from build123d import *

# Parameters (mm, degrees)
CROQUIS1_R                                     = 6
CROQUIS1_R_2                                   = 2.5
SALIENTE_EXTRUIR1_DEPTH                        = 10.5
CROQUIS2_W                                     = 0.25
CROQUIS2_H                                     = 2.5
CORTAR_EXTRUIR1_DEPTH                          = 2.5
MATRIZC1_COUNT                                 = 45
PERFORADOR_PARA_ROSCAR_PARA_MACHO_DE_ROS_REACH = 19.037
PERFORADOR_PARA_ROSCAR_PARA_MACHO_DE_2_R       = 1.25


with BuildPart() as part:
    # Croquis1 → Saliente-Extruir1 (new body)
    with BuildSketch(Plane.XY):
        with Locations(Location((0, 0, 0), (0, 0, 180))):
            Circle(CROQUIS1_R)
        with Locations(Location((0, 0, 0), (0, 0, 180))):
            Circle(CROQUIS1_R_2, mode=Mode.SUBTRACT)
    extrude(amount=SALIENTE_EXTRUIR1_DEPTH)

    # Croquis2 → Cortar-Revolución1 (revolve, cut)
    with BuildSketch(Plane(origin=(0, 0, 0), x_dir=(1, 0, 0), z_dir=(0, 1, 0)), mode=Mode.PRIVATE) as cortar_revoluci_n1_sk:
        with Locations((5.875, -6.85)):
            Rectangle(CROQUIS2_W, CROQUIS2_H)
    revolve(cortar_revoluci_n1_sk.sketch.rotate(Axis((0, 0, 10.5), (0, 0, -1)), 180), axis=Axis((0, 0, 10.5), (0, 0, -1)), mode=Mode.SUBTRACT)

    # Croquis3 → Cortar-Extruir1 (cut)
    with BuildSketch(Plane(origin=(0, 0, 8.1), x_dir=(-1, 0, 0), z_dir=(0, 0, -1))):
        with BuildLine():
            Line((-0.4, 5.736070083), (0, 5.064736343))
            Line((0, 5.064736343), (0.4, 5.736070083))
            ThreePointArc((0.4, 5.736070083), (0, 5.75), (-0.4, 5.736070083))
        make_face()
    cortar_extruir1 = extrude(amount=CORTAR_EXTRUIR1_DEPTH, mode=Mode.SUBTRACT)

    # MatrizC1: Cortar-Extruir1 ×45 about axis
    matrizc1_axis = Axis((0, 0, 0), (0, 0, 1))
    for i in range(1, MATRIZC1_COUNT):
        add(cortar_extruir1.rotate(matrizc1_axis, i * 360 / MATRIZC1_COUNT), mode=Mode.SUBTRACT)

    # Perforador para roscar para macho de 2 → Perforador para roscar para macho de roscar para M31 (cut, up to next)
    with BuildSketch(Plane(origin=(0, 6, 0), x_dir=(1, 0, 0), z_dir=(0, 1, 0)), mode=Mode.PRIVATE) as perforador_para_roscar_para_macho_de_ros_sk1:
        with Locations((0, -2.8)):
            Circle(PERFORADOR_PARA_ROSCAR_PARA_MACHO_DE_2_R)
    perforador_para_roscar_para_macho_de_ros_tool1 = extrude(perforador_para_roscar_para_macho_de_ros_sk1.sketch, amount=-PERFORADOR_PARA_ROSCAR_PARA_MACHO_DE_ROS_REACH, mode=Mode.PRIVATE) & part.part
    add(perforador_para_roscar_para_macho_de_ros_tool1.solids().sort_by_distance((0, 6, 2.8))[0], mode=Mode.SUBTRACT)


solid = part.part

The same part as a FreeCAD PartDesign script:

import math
import FreeCAD as App
import Part
import Sketcher
Q = App.Units.Quantity


def add_polygon(sketch, points):
    """Adds a closed chain of lines whose ends are joined by coincident constraints."""
    first, n = sketch.GeometryCount, len(points)
    for a, b in zip(points, points[1:] + points[:1]):
        sketch.addGeometry(Part.LineSegment(App.Vector(*a, 0), App.Vector(*b, 0)), False)
    for i in range(n):
        sketch.addConstraint(Sketcher.Constraint("Coincident", first + i, 2, first + (i + 1) % n, 1))

doc = App.newDocument("Part")
body = doc.addObject("PartDesign::Body", "Body")

sketch1 = body.newObject("Sketcher::SketchObject", "Sketch")
sketch1.AttachmentSupport = (doc.getObject("XY_Plane"), [""])
sketch1.MapMode = "FlatFace"
sketch1.addGeometry([
    Part.Circle(App.Vector(0, 0, 0), App.Vector(0, 0, 1), 6),
    Part.Circle(App.Vector(0, 0, 0), App.Vector(0, 0, 1), 2.5),
], False)
sketch1.addConstraint([
    Sketcher.Constraint("Coincident", 0, 3, -1, 1),
    Sketcher.Constraint("Coincident", 1, 3, -1, 1),
    Sketcher.Constraint("Diameter", 0, Q("12 mm")),
    Sketcher.Constraint("Diameter", 1, Q("5 mm")),
])
pad1 = body.newObject("PartDesign::Pad", "Pad")
pad1.Profile = sketch1
pad1.Length = 10.5

sketch2 = body.newObject("Sketcher::SketchObject", "Sketch001")
sketch2.AttachmentSupport = (doc.getObject("XZ_Plane"), [""])
sketch2.MapMode = "FlatFace"
add_polygon(sketch2, [(5.75, 5.6), (5.75, 8.1), (6, 8.1), (6, 5.6)])
sketch2.addConstraint([
    Sketcher.Constraint("Vertical", 0),
    Sketcher.Constraint("Horizontal", 1),
    Sketcher.Constraint("Vertical", 2),
    Sketcher.Constraint("Horizontal", 3),
    Sketcher.Constraint("DistanceY", 0, 1, 0, 2, Q("2.5 mm")),
    Sketcher.Constraint("DistanceX", -1, 1, 1, 2, Q("6 mm")),
    Sketcher.Constraint("DistanceX", 1, 1, 1, 2, Q("0.25 mm")),
    Sketcher.Constraint("DistanceY", -1, 1, 0, 2, Q("8.1 mm")),
])
groove = body.newObject("PartDesign::Groove", "Groove")
groove.Profile = sketch2
groove.ReferenceAxis = (sketch2, ["V_Axis"])
groove.Angle = 360

sketch3 = body.newObject("Sketcher::SketchObject", "Sketch002")
sketch3.AttachmentSupport = (doc.getObject("XY_Plane"), [""])
sketch3.MapMode = "FlatFace"
sketch3.AttachmentOffset = App.Placement(App.Vector(0, 0, 8.1), App.Rotation())
sketch3.addGeometry([
    Part.LineSegment(App.Vector(0.4, 5.7, 0), App.Vector(0, 5.1, 0)),
    Part.LineSegment(App.Vector(0, 5.1, 0), App.Vector(-0.4, 5.7, 0)),
    Part.ArcOfCircle(Part.Circle(App.Vector(0, 0, 0), App.Vector(0, 0, 1), 5.7), math.radians(86.01), math.radians(93.99)),
], False)
sketch3.addConstraint([
    Sketcher.Constraint("Coincident", 0, 2, 1, 1),
    Sketcher.Constraint("Coincident", 1, 2, 2, 2),
    Sketcher.Constraint("Coincident", 2, 1, 0, 1),
    Sketcher.Constraint("Coincident", 2, 3, -1, 1),
    Sketcher.Constraint("PointOnObject", 0, 2, -2),
    Sketcher.Constraint("Horizontal", 1, 2, 2, 1),
    Sketcher.Constraint("Radius", 2, Q("5.75 mm")),
    Sketcher.Constraint("DistanceX", 1, 2, -1, 1, Q("0.4 mm")),
    Sketcher.Constraint("Distance", 0, Q("0.781466 mm")),
])
pocket1 = body.newObject("PartDesign::Pocket", "Pocket")
pocket1.Profile = sketch3
pocket1.Length = 2.5
doc.recompute()

polarpattern = body.newObject("PartDesign::PolarPattern", "PolarPattern")
polarpattern.Originals = [pocket1]
polarpattern.Axis = (doc.getObject("Z_Axis"), [""])
polarpattern.Angle = 360
polarpattern.Occurrences = 45
body.Tip = polarpattern

sketch4 = body.newObject("Sketcher::SketchObject", "Sketch003")
sketch4.AttachmentSupport = (doc.getObject("XZ_Plane"), [""])
sketch4.MapMode = "FlatFace"
sketch4.AttachmentOffset = App.Placement(App.Vector(0, 0, -6), App.Rotation())
sketch4.addGeometry(Part.Circle(App.Vector(0, 2.8, 0), App.Vector(0, 0, 1), 1.2), False)
sketch4.addConstraint([
    Sketcher.Constraint("PointOnObject", 0, 3, -2),
    Sketcher.Constraint("Diameter", 0, Q("2.5 mm")),
    Sketcher.Constraint("DistanceY", -1, 1, 0, 3, Q("2.8 mm")),
])
pocket2 = body.newObject("PartDesign::Pocket", "Pocket001")
pocket2.Profile = sketch4
pocket2.Type = "UpToFirst"
pocket2.Reversed = True

doc.recompute()
